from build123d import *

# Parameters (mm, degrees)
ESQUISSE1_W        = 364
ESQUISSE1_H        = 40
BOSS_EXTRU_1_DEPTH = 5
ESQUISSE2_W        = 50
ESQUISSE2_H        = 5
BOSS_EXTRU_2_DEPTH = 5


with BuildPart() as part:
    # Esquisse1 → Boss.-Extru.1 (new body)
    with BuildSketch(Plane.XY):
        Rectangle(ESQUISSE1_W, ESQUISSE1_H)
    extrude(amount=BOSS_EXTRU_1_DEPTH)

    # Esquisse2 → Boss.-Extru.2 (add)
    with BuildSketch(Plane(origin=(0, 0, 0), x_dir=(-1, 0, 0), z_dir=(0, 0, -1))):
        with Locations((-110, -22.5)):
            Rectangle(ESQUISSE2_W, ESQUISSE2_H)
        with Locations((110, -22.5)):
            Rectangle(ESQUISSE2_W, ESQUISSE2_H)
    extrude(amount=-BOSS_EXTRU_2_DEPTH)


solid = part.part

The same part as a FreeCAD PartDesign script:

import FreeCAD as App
import Part
import Sketcher

V = App.Vector


def add_polygon(sketch, points):
    """Adds a closed chain of lines whose ends are joined by coincident constraints."""
    first, n = sketch.GeometryCount, len(points)
    for a, b in zip(points, points[1:] + points[:1]):
        sketch.addGeometry(Part.LineSegment(App.Vector(*a, 0), App.Vector(*b, 0)), False)
    for i in range(n):
        sketch.addConstraint(Sketcher.Constraint("Coincident", first + i, 2, first + (i + 1) % n, 1))

doc = App.newDocument("Part")
params = doc.addObject("Spreadsheet::Sheet", "Params")
for row, (alias, value) in enumerate([
    ("sketch1_width", "364 mm"),
    ("sketch1_height", "40 mm"),
    ("pad1_length", "5 mm"),
    ("sketch2_width", "50 mm"),
    ("sketch2_height", "5 mm"),
    ("pad2_length", "5 mm"),
], start=1):
    params.set(f"A{row}", alias)
    params.set(f"B{row}", "=" + value)
    params.setAlias(f"B{row}", alias)

body = doc.addObject("PartDesign::Body", "Body")

# Sketch on XY plane
sketch1 = body.newObject("Sketcher::SketchObject", "Sketch")
sketch1.AttachmentSupport = (doc.getObject("XY_Plane"), [""])
sketch1.MapMode = "FlatFace"
add_polygon(sketch1, [(-182, 20), (-182, -20), (182, -20), (182, 20)])  # lines 0-3
sketch1.addConstraint(Sketcher.Constraint("Vertical", 0))
sketch1.addConstraint(Sketcher.Constraint("Horizontal", 1))
sketch1.addConstraint(Sketcher.Constraint("Vertical", 2))
sketch1.addConstraint(Sketcher.Constraint("Horizontal", 3))
sketch1.addConstraint(Sketcher.Constraint("Symmetric", 0, 2, 2, 2, -1, 1))
sketch1.addConstraint(Sketcher.Constraint("DistanceX", 1, 1, 1, 2, 364.0))
sketch1.addConstraint(Sketcher.Constraint("DistanceY", 0, 2, 0, 1, 40.0))
sketch1.setExpression("Constraints[9]", "Params.sketch1_width")
sketch1.setExpression("Constraints[10]", "Params.sketch1_height")
pad1 = body.newObject("PartDesign::Pad", "Pad")
pad1.Profile = sketch1
pad1.setExpression("Length", "Params.pad1_length")

# Sketch on XY plane
sketch2 = body.newObject("Sketcher::SketchObject", "Sketch001")
sketch2.AttachmentSupport = (doc.getObject("XY_Plane"), [""])
sketch2.MapMode = "FlatFace"
add_polygon(sketch2, [(135, -20), (135, -25), (85, -25), (85, -20)])  # lines 0-3
add_polygon(sketch2, [(-85, -20), (-85, -25), (-135, -25), (-135, -20)])  # lines 4-7
sketch2.addConstraint(Sketcher.Constraint("Vertical", 0))
sketch2.addConstraint(Sketcher.Constraint("Horizontal", 1))
sketch2.addConstraint(Sketcher.Constraint("Vertical", 2))
sketch2.addConstraint(Sketcher.Constraint("Horizontal", 3))
sketch2.addConstraint(Sketcher.Constraint("Vertical", 4))
sketch2.addConstraint(Sketcher.Constraint("Horizontal", 5))
sketch2.addConstraint(Sketcher.Constraint("Vertical", 6))
sketch2.addConstraint(Sketcher.Constraint("Horizontal", 7))
sketch2.addConstraint(Sketcher.Constraint("Symmetric", 1, 2, 4, 2, -2))
sketch2.addConstraint(Sketcher.Constraint("Symmetric", 3, 2, 6, 2, -2))
sketch2.addConstraint(Sketcher.Constraint("DistanceX", 1, 2, 1, 1, 50.0))
sketch2.addConstraint(Sketcher.Constraint("DistanceY", 0, 2, 0, 1, 5.0))
sketch2.addConstraint(Sketcher.Constraint("DistanceX", -1, 1, 0, 2, 135.0))
sketch2.addConstraint(Sketcher.Constraint("DistanceY", 0, 2, -1, 1, 25.0))
sketch2.setExpression("Constraints[18]", "Params.sketch2_width")
sketch2.setExpression("Constraints[19]", "Params.sketch2_height")
pad2 = body.newObject("PartDesign::Pad", "Pad001")
pad2.Profile = sketch2
pad2.setExpression("Length", "Params.pad2_length")

doc.recompute()
